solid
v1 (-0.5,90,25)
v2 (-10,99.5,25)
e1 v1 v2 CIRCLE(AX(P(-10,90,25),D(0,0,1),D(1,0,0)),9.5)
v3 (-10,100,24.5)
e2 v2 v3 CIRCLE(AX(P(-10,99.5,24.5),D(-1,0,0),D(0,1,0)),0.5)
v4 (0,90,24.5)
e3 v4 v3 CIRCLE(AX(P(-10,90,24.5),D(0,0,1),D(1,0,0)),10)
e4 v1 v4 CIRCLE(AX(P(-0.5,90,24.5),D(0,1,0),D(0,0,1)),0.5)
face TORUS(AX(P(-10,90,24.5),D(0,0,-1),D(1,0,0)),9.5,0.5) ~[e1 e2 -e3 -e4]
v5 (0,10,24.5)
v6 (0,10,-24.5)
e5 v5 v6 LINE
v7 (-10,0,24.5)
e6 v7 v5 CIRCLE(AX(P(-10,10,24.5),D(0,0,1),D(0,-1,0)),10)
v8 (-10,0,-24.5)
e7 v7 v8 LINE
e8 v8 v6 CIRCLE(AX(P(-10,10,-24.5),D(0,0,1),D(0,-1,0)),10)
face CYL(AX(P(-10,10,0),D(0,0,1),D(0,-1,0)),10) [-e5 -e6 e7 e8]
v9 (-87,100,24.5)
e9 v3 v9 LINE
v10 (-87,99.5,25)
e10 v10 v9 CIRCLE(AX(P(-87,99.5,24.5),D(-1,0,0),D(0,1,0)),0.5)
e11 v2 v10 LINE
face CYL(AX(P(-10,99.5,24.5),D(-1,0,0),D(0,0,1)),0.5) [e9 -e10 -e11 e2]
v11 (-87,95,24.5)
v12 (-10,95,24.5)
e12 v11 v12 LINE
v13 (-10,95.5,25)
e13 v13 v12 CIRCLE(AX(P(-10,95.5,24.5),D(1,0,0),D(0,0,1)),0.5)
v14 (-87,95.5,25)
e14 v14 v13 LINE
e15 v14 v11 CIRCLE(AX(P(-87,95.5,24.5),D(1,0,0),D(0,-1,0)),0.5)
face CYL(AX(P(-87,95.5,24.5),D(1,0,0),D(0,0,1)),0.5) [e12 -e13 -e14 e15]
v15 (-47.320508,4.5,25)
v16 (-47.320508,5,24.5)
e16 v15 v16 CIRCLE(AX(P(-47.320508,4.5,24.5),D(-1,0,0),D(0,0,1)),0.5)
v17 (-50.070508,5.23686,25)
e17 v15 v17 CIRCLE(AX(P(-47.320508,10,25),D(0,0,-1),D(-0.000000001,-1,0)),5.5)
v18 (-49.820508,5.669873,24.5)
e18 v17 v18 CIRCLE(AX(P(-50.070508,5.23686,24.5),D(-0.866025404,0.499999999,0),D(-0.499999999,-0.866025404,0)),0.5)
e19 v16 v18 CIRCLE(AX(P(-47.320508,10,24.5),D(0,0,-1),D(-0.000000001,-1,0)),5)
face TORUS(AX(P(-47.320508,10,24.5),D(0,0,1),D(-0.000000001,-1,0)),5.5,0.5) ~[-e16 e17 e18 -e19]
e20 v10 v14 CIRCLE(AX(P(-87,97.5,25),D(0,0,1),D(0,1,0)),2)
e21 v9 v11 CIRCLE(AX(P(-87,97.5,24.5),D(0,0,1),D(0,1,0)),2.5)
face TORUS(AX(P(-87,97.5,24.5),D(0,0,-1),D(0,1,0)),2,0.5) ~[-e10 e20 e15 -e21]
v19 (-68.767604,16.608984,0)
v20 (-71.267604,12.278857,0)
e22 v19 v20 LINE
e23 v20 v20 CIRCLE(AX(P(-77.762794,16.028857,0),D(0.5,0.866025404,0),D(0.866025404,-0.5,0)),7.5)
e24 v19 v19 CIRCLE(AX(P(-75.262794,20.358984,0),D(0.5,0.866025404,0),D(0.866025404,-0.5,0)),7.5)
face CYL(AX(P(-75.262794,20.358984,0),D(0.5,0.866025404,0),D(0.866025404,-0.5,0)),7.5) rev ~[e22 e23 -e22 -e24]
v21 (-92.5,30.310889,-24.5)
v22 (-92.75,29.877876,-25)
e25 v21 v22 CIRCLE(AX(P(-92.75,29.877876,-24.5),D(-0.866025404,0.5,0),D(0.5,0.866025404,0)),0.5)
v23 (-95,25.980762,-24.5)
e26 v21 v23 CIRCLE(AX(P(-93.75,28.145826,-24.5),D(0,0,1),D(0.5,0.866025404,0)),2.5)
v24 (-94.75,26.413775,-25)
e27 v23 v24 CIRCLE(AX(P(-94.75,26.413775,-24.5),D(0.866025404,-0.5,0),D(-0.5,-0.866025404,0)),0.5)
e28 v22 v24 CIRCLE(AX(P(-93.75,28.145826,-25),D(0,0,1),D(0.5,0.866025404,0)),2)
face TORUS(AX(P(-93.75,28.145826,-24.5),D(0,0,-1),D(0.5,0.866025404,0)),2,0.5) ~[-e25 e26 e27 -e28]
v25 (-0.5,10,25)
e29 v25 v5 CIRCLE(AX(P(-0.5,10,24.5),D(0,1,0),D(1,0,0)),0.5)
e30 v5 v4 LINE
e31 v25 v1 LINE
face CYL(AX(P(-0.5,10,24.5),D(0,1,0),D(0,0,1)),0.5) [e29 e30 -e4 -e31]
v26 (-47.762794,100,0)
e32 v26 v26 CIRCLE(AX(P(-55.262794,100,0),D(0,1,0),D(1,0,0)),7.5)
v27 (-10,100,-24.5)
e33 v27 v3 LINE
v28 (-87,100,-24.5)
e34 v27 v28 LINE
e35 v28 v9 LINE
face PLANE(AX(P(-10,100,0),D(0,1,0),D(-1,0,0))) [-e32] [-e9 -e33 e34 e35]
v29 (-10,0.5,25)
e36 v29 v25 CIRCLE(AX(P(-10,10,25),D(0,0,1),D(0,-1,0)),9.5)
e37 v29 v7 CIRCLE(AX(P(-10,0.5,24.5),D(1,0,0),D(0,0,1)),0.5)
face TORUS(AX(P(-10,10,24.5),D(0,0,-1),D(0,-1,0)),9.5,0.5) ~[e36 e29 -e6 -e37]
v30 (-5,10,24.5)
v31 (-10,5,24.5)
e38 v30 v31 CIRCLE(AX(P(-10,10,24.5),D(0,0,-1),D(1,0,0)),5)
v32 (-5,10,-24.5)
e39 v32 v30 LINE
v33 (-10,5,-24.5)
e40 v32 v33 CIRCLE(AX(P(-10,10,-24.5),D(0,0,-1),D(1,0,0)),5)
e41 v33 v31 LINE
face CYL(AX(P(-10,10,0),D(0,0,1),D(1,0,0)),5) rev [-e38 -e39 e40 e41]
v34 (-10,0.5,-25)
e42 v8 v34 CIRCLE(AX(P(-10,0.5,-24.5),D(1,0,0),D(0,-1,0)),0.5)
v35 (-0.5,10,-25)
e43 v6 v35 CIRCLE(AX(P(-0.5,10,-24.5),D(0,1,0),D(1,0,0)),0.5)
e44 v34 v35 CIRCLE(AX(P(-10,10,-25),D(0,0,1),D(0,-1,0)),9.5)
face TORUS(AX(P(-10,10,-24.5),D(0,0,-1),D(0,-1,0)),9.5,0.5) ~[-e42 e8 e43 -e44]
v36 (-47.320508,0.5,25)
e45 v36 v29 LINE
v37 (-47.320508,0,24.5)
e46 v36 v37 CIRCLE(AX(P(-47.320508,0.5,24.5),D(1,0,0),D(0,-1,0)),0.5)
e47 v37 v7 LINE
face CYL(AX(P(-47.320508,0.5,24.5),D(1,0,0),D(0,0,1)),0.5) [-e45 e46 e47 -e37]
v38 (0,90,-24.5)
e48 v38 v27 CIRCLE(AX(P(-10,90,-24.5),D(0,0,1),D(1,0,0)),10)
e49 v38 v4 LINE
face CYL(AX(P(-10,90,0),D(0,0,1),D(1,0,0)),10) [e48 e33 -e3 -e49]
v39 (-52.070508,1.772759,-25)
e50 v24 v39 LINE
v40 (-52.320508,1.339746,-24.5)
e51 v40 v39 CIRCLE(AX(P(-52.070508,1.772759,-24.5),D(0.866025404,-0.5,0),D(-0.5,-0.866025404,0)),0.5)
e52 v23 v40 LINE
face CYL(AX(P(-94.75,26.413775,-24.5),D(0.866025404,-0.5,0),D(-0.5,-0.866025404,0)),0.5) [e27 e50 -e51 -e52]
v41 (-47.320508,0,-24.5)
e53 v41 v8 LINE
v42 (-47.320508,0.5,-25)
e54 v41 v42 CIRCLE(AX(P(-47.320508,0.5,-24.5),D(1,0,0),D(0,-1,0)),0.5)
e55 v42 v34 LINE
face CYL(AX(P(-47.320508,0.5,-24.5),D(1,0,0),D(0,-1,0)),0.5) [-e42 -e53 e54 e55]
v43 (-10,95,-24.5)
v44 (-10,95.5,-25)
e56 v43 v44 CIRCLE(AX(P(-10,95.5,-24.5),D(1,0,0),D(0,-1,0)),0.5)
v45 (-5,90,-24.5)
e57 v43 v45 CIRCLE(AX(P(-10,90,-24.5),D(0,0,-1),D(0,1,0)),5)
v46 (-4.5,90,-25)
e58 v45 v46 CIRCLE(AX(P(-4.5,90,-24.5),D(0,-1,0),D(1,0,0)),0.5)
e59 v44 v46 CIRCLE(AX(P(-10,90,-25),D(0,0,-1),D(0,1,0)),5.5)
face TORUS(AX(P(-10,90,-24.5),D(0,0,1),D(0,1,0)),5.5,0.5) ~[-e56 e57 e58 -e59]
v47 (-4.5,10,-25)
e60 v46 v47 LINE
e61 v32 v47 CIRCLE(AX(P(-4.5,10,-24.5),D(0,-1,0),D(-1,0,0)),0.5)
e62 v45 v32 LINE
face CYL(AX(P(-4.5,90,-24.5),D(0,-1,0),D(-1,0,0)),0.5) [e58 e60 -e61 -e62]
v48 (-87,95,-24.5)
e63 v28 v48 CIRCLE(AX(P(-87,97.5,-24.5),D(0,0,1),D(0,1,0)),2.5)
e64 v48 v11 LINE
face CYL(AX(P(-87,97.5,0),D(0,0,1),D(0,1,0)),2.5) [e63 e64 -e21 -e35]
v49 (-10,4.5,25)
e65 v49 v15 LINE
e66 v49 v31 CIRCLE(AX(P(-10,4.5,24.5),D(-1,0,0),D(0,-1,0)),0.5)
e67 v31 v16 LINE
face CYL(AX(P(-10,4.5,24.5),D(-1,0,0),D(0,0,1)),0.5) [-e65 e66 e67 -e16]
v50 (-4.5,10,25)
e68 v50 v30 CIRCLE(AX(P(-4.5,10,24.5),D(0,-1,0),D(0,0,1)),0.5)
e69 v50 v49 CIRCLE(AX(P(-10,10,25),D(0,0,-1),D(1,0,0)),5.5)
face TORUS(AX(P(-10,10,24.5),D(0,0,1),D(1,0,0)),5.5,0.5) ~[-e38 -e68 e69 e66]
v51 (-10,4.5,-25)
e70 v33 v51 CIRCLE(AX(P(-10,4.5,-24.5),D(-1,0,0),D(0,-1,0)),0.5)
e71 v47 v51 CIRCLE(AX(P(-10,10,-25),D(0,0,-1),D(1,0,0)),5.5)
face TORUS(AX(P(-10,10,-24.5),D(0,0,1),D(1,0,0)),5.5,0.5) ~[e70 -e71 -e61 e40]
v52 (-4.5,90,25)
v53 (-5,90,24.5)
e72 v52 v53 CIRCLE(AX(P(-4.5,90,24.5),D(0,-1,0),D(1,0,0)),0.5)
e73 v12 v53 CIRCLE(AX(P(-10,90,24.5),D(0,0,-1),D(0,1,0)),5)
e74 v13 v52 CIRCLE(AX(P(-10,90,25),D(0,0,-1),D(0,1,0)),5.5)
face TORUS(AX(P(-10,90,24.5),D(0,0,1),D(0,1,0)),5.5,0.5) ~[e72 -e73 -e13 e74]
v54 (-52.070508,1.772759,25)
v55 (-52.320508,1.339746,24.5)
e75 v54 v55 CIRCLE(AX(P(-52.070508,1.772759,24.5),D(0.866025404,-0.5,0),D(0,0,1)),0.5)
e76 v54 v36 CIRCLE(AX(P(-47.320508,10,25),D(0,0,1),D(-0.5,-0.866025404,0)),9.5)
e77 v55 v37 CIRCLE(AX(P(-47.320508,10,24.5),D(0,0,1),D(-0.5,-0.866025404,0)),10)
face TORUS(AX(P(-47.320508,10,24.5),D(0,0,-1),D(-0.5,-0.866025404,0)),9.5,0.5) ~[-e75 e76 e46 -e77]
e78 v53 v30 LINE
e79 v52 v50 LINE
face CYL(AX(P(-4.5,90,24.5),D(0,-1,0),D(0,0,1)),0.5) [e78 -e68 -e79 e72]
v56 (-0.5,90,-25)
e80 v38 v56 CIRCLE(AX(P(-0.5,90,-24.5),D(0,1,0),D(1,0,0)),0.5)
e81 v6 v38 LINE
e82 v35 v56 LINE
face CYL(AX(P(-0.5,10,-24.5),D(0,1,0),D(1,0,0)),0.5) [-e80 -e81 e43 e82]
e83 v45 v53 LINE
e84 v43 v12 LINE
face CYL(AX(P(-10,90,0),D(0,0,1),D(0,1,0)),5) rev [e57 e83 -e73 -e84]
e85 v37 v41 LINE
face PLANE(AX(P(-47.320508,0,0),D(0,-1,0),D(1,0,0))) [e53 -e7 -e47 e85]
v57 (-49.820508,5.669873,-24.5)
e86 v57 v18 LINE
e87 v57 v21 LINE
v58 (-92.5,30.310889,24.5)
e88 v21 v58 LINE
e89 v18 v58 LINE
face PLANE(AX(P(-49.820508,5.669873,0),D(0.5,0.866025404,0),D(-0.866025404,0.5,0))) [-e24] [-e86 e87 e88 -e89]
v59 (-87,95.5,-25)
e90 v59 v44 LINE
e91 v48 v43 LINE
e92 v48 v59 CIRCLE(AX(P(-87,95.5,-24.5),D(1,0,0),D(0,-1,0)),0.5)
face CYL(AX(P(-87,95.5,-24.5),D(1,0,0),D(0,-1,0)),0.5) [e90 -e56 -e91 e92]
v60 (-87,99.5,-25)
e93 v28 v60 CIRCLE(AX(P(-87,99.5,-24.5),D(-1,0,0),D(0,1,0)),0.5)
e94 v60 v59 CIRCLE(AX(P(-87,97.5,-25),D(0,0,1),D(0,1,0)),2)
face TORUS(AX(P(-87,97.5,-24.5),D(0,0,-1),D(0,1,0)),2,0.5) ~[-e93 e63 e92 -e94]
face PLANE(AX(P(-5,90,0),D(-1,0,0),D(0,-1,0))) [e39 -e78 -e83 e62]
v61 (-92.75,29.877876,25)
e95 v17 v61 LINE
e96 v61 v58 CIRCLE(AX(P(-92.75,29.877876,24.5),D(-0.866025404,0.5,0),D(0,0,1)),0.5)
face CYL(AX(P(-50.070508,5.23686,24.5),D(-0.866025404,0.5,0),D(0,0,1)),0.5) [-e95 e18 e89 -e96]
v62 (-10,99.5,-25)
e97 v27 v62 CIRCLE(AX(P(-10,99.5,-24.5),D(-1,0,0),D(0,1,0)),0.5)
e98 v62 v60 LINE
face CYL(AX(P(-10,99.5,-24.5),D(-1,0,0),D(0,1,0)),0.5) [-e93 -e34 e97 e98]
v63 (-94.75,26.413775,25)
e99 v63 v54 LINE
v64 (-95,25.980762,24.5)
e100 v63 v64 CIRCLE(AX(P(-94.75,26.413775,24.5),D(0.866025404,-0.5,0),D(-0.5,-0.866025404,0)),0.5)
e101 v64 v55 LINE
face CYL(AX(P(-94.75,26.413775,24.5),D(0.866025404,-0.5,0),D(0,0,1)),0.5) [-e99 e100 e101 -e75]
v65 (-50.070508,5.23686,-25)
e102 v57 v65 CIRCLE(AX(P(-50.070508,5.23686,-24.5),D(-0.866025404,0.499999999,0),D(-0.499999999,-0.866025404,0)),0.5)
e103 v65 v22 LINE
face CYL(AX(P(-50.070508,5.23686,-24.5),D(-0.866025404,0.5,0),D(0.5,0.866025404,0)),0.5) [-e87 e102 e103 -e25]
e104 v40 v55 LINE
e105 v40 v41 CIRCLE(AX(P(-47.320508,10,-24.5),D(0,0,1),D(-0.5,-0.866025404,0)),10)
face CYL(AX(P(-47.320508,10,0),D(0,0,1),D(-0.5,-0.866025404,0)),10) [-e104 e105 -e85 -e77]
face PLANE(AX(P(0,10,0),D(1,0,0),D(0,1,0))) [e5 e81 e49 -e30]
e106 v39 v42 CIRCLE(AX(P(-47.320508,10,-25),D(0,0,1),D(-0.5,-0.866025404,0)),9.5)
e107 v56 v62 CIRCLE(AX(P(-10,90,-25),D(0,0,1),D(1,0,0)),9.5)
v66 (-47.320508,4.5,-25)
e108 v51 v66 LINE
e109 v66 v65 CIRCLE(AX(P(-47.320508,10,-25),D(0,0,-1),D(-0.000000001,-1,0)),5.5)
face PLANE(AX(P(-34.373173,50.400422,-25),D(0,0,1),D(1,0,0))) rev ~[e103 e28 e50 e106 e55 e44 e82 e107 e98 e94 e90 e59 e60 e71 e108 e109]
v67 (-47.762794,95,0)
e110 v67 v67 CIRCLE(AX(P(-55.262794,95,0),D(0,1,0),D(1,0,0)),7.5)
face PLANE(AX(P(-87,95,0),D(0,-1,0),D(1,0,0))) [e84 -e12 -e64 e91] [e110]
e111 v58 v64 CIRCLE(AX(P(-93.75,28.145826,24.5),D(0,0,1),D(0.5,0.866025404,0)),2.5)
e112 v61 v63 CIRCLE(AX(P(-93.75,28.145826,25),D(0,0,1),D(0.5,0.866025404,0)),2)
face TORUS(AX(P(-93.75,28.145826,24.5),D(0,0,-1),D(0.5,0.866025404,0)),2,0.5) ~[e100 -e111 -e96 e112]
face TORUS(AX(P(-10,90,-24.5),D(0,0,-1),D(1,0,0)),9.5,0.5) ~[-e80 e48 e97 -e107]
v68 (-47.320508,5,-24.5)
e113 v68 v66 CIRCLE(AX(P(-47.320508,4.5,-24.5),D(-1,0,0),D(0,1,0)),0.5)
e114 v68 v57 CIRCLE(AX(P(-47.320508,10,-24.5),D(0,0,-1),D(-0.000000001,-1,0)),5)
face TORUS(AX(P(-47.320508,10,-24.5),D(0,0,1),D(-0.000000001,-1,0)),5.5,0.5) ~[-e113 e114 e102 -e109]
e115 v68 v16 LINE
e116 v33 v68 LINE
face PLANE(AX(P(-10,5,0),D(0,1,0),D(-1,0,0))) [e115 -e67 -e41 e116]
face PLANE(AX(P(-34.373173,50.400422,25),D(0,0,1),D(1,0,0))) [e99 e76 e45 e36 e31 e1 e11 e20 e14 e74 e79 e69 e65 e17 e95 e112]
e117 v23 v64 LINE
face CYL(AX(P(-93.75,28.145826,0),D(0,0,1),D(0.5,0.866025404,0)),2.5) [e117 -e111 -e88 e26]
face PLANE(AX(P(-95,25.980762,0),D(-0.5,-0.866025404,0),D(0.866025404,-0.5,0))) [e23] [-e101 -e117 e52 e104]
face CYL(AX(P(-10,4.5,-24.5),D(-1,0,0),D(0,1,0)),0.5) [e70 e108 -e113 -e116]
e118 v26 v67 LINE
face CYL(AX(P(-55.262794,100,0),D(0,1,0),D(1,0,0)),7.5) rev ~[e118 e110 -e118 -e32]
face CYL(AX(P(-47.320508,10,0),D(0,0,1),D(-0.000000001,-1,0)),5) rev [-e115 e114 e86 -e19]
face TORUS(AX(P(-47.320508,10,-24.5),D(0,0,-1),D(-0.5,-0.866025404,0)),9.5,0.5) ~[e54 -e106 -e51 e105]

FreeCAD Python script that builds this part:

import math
import FreeCAD as App
import Part
import Sketcher

V = App.Vector
Q = App.Units.Quantity


def edges_at(feature, points):
    """Names of the edges that pass closest to the given points."""
    edges = feature.Shape.Edges
    near = lambda p: min(range(len(edges)), key=lambda i: edges[i].distToShape(Part.Vertex(*p))[0])
    return sorted({f"Edge{near(p) + 1}" for p in points})

doc = App.newDocument("Part")
body = doc.addObject("PartDesign::Body", "Body")

# Sketch on XY plane
sketch1 = body.newObject("Sketcher::SketchObject", "Sketch")
sketch1.AttachmentSupport = (doc.getObject("XY_Plane"), [""])
sketch1.MapMode = "FlatFace"
sketch1.addGeometry([
    Part.LineSegment(V(0, 10, 0), V(0, 90, 0)),  # 0
    Part.ArcOfCircle(Part.Circle(V(-10, 90, 0), V(0, 0, 1), 10), math.radians(0), math.radians(90)),  # 1
    Part.LineSegment(V(-10, 100, 0), V(-87, 100, 0)),  # 2
    Part.ArcOfCircle(Part.Circle(V(-87, 97.5, 0), V(0, 0, 1), 2.5), math.radians(90), math.radians(270)),  # 3
    Part.LineSegment(V(-87, 95, 0), V(-10, 95, 0)),  # 4
    Part.ArcOfCircle(Part.Circle(V(-10, 90, 0), V(0, 0, 1), 5), math.radians(0), math.radians(90)),  # 5
    Part.LineSegment(V(-5, 90, 0), V(-5, 10, 0)),  # 6
    Part.ArcOfCircle(Part.Circle(V(-10, 10, 0), V(0, 0, 1), 5), math.radians(-90), math.radians(0)),  # 7
    Part.LineSegment(V(-10, 5, 0), V(-47.320508, 5, 0)),  # 8
    Part.ArcOfCircle(Part.Circle(V(-47.320508, 10, 0), V(0, 0, 1), 5), math.radians(-120), math.radians(-90)),  # 9
    Part.LineSegment(V(-49.820508, 5.669873, 0), V(-92.5, 30.310889, 0)),  # 10
    Part.ArcOfCircle(Part.Circle(V(-93.75, 28.145826, 0), V(0, 0, 1), 2.5), math.radians(60), math.radians(240)),  # 11
    Part.LineSegment(V(-95, 25.980762, 0), V(-52.320508, 1.339746, 0)),  # 12
    Part.ArcOfCircle(Part.Circle(V(-47.320508, 10, 0), V(0, 0, 1), 10), math.radians(-120), math.radians(-90)),  # 13
    Part.LineSegment(V(-47.320508, 0, 0), V(-10, 0, 0)),  # 14
    Part.ArcOfCircle(Part.Circle(V(-10, 10, 0), V(0, 0, 1), 10), math.radians(-90), math.radians(0)),  # 15
], False)
sketch1.addConstraint([
    Sketcher.Constraint("Tangent", 0, 2, 1, 1),
    Sketcher.Constraint("Tangent", 1, 2, 2, 1),
    Sketcher.Constraint("Tangent", 2, 2, 3, 1),
    Sketcher.Constraint("Tangent", 3, 2, 4, 1),
    Sketcher.Constraint("Tangent", 4, 2, 5, 2),
    Sketcher.Constraint("Tangent", 5, 1, 6, 1),
    Sketcher.Constraint("Tangent", 6, 2, 7, 2),
    Sketcher.Constraint("Tangent", 7, 1, 8, 1),
    Sketcher.Constraint("Tangent", 8, 2, 9, 2),
    Sketcher.Constraint("Tangent", 9, 1, 10, 1),
    Sketcher.Constraint("Tangent", 10, 2, 11, 1),
    Sketcher.Constraint("Tangent", 11, 2, 12, 1),
    Sketcher.Constraint("Tangent", 12, 2, 13, 1),
    Sketcher.Constraint("Tangent", 13, 2, 14, 1),
    Sketcher.Constraint("Tangent", 14, 2, 15, 1),
    Sketcher.Constraint("Tangent", 15, 2, 0, 1),
    Sketcher.Constraint("Vertical", 0),
    Sketcher.Constraint("Horizontal", 2),
    Sketcher.Constraint("Horizontal", 4),
    Sketcher.Constraint("Vertical", 6),
    Sketcher.Constraint("Horizontal", 8),
    Sketcher.Constraint("Horizontal", 14),
    Sketcher.Constraint("Coincident", 5, 3, 1, 3),
    Sketcher.Constraint("Coincident", 13, 3, 9, 3),
    Sketcher.Constraint("Coincident", 15, 3, 7, 3),
    Sketcher.Constraint("Equal", 5, 7),
    Sketcher.Constraint("Equal", 7, 9),
    Sketcher.Constraint("Equal", 3, 11),
    Sketcher.Constraint("PointOnObject", 0, 2, -2),
    Sketcher.Constraint("PointOnObject", 13, 2, -1),
    Sketcher.Constraint("Radius", 1, Q("10 mm")),
    Sketcher.Constraint("Radius", 5, Q("5 mm")),
    Sketcher.Constraint("DistanceX", 2, 2, 2, 1, Q("77 mm")),
    Sketcher.Constraint("DistanceY", 0, 1, 0, 2, Q("80 mm")),
    Sketcher.Constraint("Angle", 10, Q("150 deg")),
    Sketcher.Constraint("DistanceX", 11, 2, -1, 1, Q("95 mm")),
    Sketcher.Constraint("DistanceX", 8, 2, 8, 1, Q("37.320508 mm")),
])
pad1 = body.newObject("PartDesign::Pad", "Pad")
pad1.Profile = sketch1
pad1.Length = 50
pad1.Midplane = True

# Sketch on an angled plane
sketch2 = body.newObject("Sketcher::SketchObject", "Sketch001")
sketch2.Placement = App.Placement(V(-10, -17.320508, 0), App.Rotation(V(0.866025404, -0.5, 0), V(0, 0, -1), V(0.5, 0.866025404, 0), "ZXY"))
sketch2.addGeometry(Part.Circle(V(-75.358984, 0, 0), V(0, 0, 1), 7.5), False)
sketch2.addConstraint([
    Sketcher.Constraint("PointOnObject", 0, 3, -1),
    Sketcher.Constraint("Diameter", 0, Q("15 mm")),
    Sketcher.Constraint("DistanceX", 0, 3, -1, 1, Q("75.358984 mm")),
])
pocket1 = body.newObject("PartDesign::Pocket", "Pocket")
pocket1.Profile = sketch2
pocket1.Length = 5

# Sketch on XZ plane
sketch3 = body.newObject("Sketcher::SketchObject", "Sketch002")
sketch3.AttachmentSupport = (doc.getObject("XZ_Plane"), [""])
sketch3.MapMode = "FlatFace"
sketch3.AttachmentOffset = App.Placement(V(0, 0, -100), App.Rotation())
sketch3.addGeometry(Part.Circle(V(-55.262794, 0, 0), V(0, 0, 1), 7.5), False)
sketch3.addConstraint([
    Sketcher.Constraint("PointOnObject", 0, 3, -1),
    Sketcher.Constraint("Diameter", 0, Q("15 mm")),
    Sketcher.Constraint("DistanceX", 0, 3, -1, 1, Q("55.262794 mm")),
])
pocket2 = body.newObject("PartDesign::Pocket", "Pocket001")
pocket2.Profile = sketch3
pocket2.Length = 5
pocket2.Reversed = True
doc.recompute()

fillet = body.newObject("PartDesign::Fillet", "Fillet")
fillet.Base = (pocket2, edges_at(pocket2, [
    (-89.5, 97.5, 25),
    (0, 50, -25),
    (-2.929, 2.929, -25),
    (-28.66, 0, -25),
    (-48.5, 95, 25),
    (-49.909, 0.341, -25),
    (-73.66, 13.66, -25),
    (-95.915, 29.396, -25),
    (-71.16, 17.99, -25),
    (-48.615, 5.17, -25),
    (-28.66, 5, -25),
    (-6.464, 6.464, -25),
    (-5, 50, -25),
    (-6.464, 93.536, -25),
    (-48.5, 95, -25),
    (-6.464, 93.536, 25),
    (-89.5, 97.5, -25),
    (-48.5, 100, -25),
    (-2.929, 97.071, -25),
    (-5, 50, 25),
    (-6.464, 6.464, 25),
    (-28.66, 5, 25),
    (-48.615, 5.17, 25),
    (-71.16, 17.99, 25),
    (-95.915, 29.396, 25),
    (-73.66, 13.66, 25),
    (-2.929, 97.071, 25),
    (-49.909, 0.341, 25),
    (-28.66, 0, 25),
    (-2.929, 2.929, 25),
    (0, 50, 25),
    (-48.5, 100, 25),
]))
fillet.Radius = 0.5

doc.recompute()
